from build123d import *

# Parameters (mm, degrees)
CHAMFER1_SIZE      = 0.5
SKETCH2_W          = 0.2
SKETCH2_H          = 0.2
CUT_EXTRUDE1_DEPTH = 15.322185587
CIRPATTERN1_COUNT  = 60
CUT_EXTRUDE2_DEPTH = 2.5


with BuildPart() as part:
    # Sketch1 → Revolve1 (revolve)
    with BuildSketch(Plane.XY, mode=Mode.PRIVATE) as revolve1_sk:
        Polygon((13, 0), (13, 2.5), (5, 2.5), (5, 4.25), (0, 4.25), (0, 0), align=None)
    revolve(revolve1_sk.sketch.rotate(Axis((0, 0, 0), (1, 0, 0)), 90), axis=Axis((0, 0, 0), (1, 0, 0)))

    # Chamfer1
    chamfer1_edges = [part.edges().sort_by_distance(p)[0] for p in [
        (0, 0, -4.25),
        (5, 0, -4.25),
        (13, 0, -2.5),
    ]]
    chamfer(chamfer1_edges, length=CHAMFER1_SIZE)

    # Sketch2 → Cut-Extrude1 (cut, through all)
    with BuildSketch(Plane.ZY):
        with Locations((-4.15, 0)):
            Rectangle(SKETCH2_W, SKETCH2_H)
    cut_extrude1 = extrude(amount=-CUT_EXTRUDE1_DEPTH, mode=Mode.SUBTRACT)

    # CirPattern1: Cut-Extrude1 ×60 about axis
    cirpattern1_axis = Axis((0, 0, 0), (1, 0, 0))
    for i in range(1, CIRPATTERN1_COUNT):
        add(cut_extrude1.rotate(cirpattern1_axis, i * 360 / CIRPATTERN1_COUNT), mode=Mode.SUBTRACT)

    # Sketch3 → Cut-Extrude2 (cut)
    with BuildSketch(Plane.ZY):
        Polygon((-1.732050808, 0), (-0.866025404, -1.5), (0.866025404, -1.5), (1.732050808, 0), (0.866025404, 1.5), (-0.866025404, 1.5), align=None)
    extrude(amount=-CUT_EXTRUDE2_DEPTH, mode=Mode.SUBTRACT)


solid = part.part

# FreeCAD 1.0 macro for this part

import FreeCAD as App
import Part
import Sketcher
from FreeCAD import Vector
Q = App.Units.Quantity


def edges_at(feature, points):
    """Names of the edges that pass closest to the given points."""
    edges = feature.Shape.Edges
    near = lambda p: min(range(len(edges)), key=lambda i: edges[i].distToShape(Part.Vertex(*p))[0])
    return sorted({f"Edge{near(p) + 1}" for p in points})


def add_polygon(sketch, points):
    """Adds a closed chain of lines whose ends are joined by coincident constraints."""
    first, n = sketch.GeometryCount, len(points)
    for a, b in zip(points, points[1:] + points[:1]):
        sketch.addGeometry(Part.LineSegment(App.Vector(*a, 0), App.Vector(*b, 0)), False)
    for i in range(n):
        sketch.addConstraint(Sketcher.Constraint("Coincident", first + i, 2, first + (i + 1) % n, 1))

doc = App.newDocument("Part")
body = doc.addObject("PartDesign::Body", "Body")

# Sketch on XY plane
sketch1 = body.newObject("Sketcher::SketchObject", "Sketch")
sketch1.AttachmentSupport = (doc.getObject("XY_Plane"), [""])
sketch1.MapMode = "FlatFace"
add_polygon(sketch1, [(13, 0), (13, 2.5), (5, 2.5), (5, 4.2), (0, 4.2), (0, 0)])  # lines 0-5
sketch1.addConstraint(Sketcher.Constraint("Vertical", 0))
sketch1.addConstraint(Sketcher.Constraint("Horizontal", 1))
sketch1.addConstraint(Sketcher.Constraint("Vertical", 2))
sketch1.addConstraint(Sketcher.Constraint("Horizontal", 3))
sketch1.addConstraint(Sketcher.Constraint("Vertical", 4))
sketch1.addConstraint(Sketcher.Constraint("Horizontal", 5))
sketch1.addConstraint(Sketcher.Constraint("Coincident", 4, 2, -1, 1))
sketch1.addConstraint(Sketcher.Constraint("DistanceX", 1, 2, 1, 1, Q("8 mm")))
sketch1.addConstraint(Sketcher.Constraint("DistanceX", 3, 2, 3, 1, Q("5 mm")))
sketch1.addConstraint(Sketcher.Constraint("DistanceY", 0, 1, 0, 2, Q("2.5 mm")))
sketch1.addConstraint(Sketcher.Constraint("DistanceY", 2, 1, 2, 2, Q("1.75 mm")))
revolution = body.newObject("PartDesign::Revolution", "Revolution")
revolution.Profile = sketch1
revolution.ReferenceAxis = (sketch1, ["H_Axis"])
revolution.Angle = 360
doc.recompute()

chamfer = body.newObject("PartDesign::Chamfer", "Chamfer")
chamfer.Base = (revolution, edges_at(revolution, [(0, 0, -4.25), (5, 0, -4.25), (13, 0, -2.5)]))
chamfer.Size = 0.5

# Sketch on YZ plane
sketch2 = body.newObject("Sketcher::SketchObject", "Sketch001")
sketch2.AttachmentSupport = (doc.getObject("YZ_Plane"), [""])
sketch2.MapMode = "FlatFace"
add_polygon(sketch2, [(0.1, -4.25), (-0.1, -4.25), (-0.1, -4.05), (0.1, -4.05)])  # lines 0-3
sketch2.addConstraint(Sketcher.Constraint("Horizontal", 0))
sketch2.addConstraint(Sketcher.Constraint("Vertical", 1))
sketch2.addConstraint(Sketcher.Constraint("Horizontal", 2))
sketch2.addConstraint(Sketcher.Constraint("Vertical", 3))
sketch2.addConstraint(Sketcher.Constraint("Equal", 2, 1))
sketch2.addConstraint(Sketcher.Constraint("DistanceX", 0, 2, 0, 1, Q("0.2 mm")))
sketch2.addConstraint(Sketcher.Constraint("DistanceX", 0, 2, -1, 1, Q("0.1 mm")))
sketch2.addConstraint(Sketcher.Constraint("DistanceY", 0, 2, -1, 1, Q("4.25 mm")))
pocket1 = body.newObject("PartDesign::Pocket", "Pocket")
pocket1.Profile = sketch2
pocket1.Type = "ThroughAll"
pocket1.Reversed = True
doc.recompute()

polarpattern = body.newObject("PartDesign::PolarPattern", "PolarPattern")
polarpattern.Originals = [pocket1]
polarpattern.Axis = (doc.getObject("X_Axis"), [""])
polarpattern.Angle = 360
polarpattern.Occurrences = 60
body.Tip = polarpattern

# Sketch on YZ plane
sketch3 = body.newObject("Sketcher::SketchObject", "Sketch002")
sketch3.AttachmentSupport = (doc.getObject("YZ_Plane"), [""])
sketch3.MapMode = "FlatFace"
add_polygon(sketch3, [(0, -1.7), (-1.5, -0.9), (-1.5, 0.9), (0, 1.7), (1.5, 0.9), (1.5, -0.9)])  # lines 0-5
sketch3.addConstraint(Sketcher.Constraint("Vertical", 1))
sketch3.addConstraint(Sketcher.Constraint("Vertical", 4))
sketch3.addConstraint(Sketcher.Constraint("Symmetric", 0, 2, 3, 2, -1, 1))
sketch3.addConstraint(Sketcher.Constraint("Symmetric", 2, 2, 5, 2, -1, 1))
sketch3.addConstraint(Sketcher.Constraint("PointOnObject", 2, 2, -2))
sketch3.addConstraint(Sketcher.Constraint("Parallel", 2, 5))
sketch3.addConstraint(Sketcher.Constraint("Horizontal", 1, 2, 3, 2))
sketch3.addConstraint(Sketcher.Constraint("Angle", 0, Q("150 deg")))
sketch3.addConstraint(Sketcher.Constraint("DistanceX", 1, 2, 3, 2, Q("3 mm")))
sketch3.addConstraint(Sketcher.Constraint("DistanceY", 1, 1, 1, 2, Q("1.732051 mm")))
pocket2 = body.newObject("PartDesign::Pocket", "Pocket001")
pocket2.Profile = sketch3
pocket2.Length = 2.5
pocket2.Reversed = True

doc.recompute()
